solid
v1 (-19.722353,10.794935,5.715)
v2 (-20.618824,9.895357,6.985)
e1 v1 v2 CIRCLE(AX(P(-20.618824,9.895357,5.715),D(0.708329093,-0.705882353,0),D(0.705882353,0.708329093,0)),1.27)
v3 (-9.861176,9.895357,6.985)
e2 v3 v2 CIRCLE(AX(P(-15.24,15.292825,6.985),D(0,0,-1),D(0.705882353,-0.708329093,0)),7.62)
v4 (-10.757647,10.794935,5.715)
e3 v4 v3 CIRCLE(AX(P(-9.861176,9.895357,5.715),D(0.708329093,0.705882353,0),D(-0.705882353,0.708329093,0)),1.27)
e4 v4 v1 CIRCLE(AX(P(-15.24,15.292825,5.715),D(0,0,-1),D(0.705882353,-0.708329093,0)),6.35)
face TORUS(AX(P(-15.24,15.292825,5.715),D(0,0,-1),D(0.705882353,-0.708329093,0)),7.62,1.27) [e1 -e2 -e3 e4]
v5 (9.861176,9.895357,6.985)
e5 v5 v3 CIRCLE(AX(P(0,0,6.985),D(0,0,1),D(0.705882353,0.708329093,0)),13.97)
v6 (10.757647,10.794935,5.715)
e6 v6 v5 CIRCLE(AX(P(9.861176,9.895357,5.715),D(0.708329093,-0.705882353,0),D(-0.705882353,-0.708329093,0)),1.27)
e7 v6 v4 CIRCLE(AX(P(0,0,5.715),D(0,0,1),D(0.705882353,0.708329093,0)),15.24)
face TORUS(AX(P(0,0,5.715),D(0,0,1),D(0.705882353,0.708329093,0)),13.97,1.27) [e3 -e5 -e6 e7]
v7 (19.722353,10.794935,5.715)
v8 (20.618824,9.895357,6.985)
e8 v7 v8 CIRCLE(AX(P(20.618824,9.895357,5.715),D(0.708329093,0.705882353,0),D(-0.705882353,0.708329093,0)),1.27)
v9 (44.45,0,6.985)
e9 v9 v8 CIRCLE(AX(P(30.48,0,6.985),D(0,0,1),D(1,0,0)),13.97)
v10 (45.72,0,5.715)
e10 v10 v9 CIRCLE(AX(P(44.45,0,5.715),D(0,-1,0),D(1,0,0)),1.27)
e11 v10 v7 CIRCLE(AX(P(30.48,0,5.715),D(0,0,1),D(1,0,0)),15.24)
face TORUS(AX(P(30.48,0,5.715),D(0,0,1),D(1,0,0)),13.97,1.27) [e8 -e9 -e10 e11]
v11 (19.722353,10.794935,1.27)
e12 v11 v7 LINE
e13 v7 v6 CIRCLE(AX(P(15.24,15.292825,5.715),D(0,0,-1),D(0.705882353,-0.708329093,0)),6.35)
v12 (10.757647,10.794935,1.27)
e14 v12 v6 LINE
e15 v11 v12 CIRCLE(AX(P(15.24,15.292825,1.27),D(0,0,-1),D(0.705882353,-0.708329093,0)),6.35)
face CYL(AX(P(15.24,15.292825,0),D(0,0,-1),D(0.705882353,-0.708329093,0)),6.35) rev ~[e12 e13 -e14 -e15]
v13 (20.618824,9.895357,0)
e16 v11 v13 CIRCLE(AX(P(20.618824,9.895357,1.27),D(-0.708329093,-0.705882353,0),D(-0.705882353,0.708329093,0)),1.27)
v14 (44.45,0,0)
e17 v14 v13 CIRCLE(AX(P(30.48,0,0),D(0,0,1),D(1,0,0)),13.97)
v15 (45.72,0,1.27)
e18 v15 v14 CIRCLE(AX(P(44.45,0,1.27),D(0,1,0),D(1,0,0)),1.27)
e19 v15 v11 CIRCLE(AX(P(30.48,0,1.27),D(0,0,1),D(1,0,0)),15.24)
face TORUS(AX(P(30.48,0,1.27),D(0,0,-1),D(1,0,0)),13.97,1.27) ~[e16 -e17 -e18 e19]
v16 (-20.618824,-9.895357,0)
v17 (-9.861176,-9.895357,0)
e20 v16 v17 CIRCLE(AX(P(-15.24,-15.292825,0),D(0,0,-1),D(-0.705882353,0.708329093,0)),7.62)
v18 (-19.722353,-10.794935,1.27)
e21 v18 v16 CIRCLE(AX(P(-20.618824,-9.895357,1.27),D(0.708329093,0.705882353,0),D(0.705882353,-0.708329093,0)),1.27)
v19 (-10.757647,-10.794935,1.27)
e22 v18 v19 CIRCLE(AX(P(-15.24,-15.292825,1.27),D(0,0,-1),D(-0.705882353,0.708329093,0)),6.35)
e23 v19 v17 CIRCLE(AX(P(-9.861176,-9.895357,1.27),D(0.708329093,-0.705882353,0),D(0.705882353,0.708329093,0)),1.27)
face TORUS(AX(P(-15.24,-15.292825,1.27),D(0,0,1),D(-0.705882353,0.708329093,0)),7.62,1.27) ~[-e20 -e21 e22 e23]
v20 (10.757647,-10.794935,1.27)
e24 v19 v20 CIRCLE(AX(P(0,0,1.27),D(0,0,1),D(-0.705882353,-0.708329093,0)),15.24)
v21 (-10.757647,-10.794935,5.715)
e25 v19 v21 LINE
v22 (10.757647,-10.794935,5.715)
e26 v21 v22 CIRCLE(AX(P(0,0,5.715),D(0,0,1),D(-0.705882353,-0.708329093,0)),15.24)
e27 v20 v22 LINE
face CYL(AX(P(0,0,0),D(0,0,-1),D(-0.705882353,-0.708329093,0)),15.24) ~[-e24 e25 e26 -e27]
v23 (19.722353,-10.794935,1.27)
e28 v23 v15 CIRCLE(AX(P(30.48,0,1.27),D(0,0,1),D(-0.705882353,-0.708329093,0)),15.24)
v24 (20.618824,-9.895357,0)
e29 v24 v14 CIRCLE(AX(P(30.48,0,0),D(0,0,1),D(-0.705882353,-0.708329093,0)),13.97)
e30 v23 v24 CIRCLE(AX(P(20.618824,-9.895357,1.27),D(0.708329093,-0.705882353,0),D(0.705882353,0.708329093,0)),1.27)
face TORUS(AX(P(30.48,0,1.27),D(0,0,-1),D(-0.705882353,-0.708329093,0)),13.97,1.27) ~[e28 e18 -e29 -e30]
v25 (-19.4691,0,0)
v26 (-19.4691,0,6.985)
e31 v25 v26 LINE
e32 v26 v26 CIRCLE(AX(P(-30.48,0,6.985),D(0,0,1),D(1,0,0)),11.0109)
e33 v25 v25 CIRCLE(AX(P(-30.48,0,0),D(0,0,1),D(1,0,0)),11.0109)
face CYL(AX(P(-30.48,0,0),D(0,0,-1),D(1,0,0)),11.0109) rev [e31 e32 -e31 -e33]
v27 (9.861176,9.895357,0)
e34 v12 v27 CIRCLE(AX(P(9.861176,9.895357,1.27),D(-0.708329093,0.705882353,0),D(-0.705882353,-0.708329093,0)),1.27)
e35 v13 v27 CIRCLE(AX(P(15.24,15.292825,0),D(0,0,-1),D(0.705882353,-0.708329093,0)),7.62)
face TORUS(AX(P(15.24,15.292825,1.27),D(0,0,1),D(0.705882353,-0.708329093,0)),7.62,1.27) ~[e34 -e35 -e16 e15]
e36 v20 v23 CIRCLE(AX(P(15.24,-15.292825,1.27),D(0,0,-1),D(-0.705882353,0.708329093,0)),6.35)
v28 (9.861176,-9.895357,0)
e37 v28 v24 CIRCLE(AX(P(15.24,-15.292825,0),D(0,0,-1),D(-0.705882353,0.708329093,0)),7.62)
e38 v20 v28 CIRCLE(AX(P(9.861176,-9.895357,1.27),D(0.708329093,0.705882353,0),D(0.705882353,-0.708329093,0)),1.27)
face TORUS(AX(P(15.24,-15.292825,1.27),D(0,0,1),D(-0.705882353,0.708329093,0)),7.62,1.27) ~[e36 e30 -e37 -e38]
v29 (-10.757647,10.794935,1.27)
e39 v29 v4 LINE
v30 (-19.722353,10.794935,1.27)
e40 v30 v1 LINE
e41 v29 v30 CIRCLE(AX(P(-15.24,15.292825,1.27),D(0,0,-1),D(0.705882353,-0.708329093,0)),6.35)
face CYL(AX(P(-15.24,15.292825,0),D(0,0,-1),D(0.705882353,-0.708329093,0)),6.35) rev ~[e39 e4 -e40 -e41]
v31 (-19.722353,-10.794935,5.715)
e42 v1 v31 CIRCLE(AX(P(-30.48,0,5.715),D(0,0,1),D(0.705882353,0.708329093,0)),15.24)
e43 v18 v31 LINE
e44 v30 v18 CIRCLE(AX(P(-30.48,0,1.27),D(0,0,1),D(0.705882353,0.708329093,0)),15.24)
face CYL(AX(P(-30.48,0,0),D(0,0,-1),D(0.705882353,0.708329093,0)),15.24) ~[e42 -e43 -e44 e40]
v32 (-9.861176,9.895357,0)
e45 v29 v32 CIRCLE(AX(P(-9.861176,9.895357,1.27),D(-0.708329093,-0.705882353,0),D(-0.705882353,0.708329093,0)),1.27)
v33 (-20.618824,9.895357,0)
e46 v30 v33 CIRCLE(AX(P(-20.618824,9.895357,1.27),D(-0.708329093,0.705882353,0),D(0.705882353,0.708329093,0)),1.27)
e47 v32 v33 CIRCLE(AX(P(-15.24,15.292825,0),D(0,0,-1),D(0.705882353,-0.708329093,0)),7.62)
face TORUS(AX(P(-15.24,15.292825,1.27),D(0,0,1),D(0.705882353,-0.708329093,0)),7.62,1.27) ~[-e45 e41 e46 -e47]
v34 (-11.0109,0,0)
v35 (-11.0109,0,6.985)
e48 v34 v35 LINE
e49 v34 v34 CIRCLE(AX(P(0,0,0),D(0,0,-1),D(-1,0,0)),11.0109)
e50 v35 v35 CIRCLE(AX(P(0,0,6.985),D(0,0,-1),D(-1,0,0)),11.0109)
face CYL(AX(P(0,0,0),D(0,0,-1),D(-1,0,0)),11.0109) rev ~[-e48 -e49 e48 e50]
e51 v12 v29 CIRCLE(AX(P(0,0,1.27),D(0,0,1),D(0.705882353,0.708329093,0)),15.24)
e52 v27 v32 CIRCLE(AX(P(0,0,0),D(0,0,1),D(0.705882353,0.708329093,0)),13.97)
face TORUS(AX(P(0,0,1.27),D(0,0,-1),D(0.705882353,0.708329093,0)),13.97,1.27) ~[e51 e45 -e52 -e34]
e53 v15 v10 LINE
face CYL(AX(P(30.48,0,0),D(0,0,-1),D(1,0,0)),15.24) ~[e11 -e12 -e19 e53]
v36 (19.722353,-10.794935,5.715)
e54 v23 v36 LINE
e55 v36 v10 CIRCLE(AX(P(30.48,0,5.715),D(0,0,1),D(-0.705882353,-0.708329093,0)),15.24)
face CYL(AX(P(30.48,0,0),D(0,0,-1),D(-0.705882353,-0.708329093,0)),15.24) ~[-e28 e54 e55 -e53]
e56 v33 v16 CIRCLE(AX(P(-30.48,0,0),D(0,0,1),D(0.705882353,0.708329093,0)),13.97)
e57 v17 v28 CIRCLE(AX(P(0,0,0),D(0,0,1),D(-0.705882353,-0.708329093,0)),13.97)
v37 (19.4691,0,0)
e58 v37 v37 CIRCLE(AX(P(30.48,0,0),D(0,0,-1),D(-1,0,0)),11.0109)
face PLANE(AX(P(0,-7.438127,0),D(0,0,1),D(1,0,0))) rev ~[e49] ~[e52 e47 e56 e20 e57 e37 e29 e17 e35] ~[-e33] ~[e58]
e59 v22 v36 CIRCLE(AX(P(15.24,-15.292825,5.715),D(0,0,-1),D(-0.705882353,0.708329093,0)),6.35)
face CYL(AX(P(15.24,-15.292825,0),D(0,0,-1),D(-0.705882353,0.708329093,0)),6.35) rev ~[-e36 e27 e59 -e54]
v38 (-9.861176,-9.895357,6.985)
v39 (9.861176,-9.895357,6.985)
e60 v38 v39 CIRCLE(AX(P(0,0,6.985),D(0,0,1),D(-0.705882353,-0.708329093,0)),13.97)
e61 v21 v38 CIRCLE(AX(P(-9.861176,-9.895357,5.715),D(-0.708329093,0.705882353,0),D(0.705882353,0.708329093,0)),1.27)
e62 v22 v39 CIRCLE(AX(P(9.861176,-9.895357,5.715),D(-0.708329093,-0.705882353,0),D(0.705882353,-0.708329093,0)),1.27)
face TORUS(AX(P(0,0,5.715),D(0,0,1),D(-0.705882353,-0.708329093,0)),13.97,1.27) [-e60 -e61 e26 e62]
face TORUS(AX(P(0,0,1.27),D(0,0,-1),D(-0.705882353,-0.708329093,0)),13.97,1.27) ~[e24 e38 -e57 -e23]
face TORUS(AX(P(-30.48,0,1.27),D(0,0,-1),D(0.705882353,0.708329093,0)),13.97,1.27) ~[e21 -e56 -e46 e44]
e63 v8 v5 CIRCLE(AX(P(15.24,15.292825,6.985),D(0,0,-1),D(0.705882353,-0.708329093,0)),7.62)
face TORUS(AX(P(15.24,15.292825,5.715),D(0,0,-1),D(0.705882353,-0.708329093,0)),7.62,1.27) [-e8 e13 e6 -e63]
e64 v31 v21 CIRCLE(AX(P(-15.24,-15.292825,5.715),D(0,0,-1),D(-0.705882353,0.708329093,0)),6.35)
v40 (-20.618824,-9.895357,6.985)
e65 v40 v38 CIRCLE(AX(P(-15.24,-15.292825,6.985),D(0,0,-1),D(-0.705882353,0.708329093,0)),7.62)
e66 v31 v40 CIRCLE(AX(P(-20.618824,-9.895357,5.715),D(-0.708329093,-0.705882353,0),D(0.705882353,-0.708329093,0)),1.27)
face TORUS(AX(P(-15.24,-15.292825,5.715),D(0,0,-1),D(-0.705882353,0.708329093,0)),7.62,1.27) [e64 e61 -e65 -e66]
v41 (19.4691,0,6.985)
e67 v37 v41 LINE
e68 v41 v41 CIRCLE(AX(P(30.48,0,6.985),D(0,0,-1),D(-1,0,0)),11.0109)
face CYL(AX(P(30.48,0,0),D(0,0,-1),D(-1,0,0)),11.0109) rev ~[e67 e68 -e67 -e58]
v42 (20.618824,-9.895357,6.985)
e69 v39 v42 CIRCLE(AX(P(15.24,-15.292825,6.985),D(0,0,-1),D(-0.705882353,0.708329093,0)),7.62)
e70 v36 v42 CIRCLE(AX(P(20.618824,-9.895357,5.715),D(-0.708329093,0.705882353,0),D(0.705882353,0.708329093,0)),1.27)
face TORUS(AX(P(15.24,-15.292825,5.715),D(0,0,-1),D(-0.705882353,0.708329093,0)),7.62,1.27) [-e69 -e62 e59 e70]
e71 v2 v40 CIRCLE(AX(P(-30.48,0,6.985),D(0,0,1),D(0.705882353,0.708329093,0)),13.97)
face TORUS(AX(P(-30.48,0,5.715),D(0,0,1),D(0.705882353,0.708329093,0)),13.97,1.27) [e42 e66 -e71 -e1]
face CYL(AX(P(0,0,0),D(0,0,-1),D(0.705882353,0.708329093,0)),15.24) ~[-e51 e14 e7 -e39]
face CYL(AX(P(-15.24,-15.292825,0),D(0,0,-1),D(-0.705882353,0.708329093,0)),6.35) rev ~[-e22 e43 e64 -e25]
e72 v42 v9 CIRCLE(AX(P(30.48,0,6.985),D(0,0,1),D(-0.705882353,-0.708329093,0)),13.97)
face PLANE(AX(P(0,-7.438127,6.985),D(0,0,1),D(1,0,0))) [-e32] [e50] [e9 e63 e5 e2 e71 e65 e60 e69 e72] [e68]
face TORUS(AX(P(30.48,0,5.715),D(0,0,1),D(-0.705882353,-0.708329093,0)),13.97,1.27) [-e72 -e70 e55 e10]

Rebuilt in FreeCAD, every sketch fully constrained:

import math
import FreeCAD as App
import Part
import Sketcher

V = App.Vector
Q = App.Units.Quantity


def edges_at(feature, points):
    """Names of the edges that pass closest to the given points."""
    edges = feature.Shape.Edges
    near = lambda p: min(range(len(edges)), key=lambda i: edges[i].distToShape(Part.Vertex(*p))[0])
    return sorted({f"Edge{near(p) + 1}" for p in points})

doc = App.newDocument("Part")
params = doc.addObject("Spreadsheet::Sheet", "Params")
for row, (alias, value) in enumerate([
    ("sketch1_radius", "0.6 in"),
    ("sketch1_radius2", "0.25 in"),
    ("sketch1_diameter", "0.867 in"),
    ("pad1_length", "0.275 in"),
    ("fillet_radius", "0.05 in"),
], start=1):
    params.set(f"A{row}", alias)
    params.set(f"B{row}", "=" + value)
    params.setAlias(f"B{row}", alias)

body = doc.addObject("PartDesign::Body", "Body")

sketch1 = body.newObject("Sketcher::SketchObject", "Sketch")
sketch1.AttachmentSupport = (doc.getObject("XY_Plane"), [""])
sketch1.MapMode = "FlatFace"
sketch1.addGeometry([
    Part.ArcOfCircle(Part.Circle(V(-30.48, 0, 0), V(0, 0, 1), 15.24), math.radians(45.099128), math.radians(314.900872)),
    Part.ArcOfCircle(Part.Circle(V(-15.24, -15.292825, 0), V(0, 0, 1), 6.35), math.radians(45.099128), math.radians(134.900872)),
    Part.ArcOfCircle(Part.Circle(V(0, 0, 0), V(0, 0, 1), 15.24), math.radians(-134.900872), math.radians(-45.099128)),
    Part.ArcOfCircle(Part.Circle(V(15.24, -15.292825, 0), V(0, 0, 1), 6.35), math.radians(45.099128), math.radians(134.900872)),
    Part.ArcOfCircle(Part.Circle(V(30.48, 0, 0), V(0, 0, 1), 15.24), math.radians(-134.900872), math.radians(0)),
    Part.ArcOfCircle(Part.Circle(V(30.48, 0, 0), V(0, 0, 1), 15.24), math.radians(0), math.radians(134.900872)),
    Part.ArcOfCircle(Part.Circle(V(15.24, 15.292825, 0), V(0, 0, 1), 6.35), math.radians(-134.900872), math.radians(-45.099128)),
    Part.ArcOfCircle(Part.Circle(V(0, 0, 0), V(0, 0, 1), 15.24), math.radians(45.099128), math.radians(134.900872)),
    Part.ArcOfCircle(Part.Circle(V(-15.24, 15.292825, 0), V(0, 0, 1), 6.35), math.radians(-134.900872), math.radians(-45.099128)),
    Part.Circle(V(0, 0, 0), V(0, 0, 1), 11.0109),
    Part.Circle(V(30.48, 0, 0), V(0, 0, 1), 11.0109),
    Part.Circle(V(-30.48, 0, 0), V(0, 0, 1), 11.0109),
], False)
sketch1.addConstraint([
    Sketcher.Constraint("Tangent", 0, 2, 1, 2),
    Sketcher.Constraint("Tangent", 1, 1, 2, 1),
    Sketcher.Constraint("Tangent", 2, 2, 3, 2),
    Sketcher.Constraint("Tangent", 3, 1, 4, 1),
    Sketcher.Constraint("Tangent", 4, 2, 5, 1),
    Sketcher.Constraint("Tangent", 5, 2, 6, 2),
    Sketcher.Constraint("Tangent", 6, 1, 7, 1),
    Sketcher.Constraint("Tangent", 7, 2, 8, 2),
    Sketcher.Constraint("Tangent", 8, 1, 0, 1),
    Sketcher.Constraint("Coincident", 2, 3, -1, 1),
    Sketcher.Constraint("Coincident", 7, 3, -1, 1),
    Sketcher.Constraint("Coincident", 9, 3, -1, 1),
    Sketcher.Constraint("Coincident", 10, 3, 4, 3),
    Sketcher.Constraint("Coincident", 11, 3, 0, 3),
    Sketcher.Constraint("Equal", 0, 2),
    Sketcher.Constraint("Equal", 1, 3),
    Sketcher.Constraint("Equal", 2, 4),
    Sketcher.Constraint("Equal", 4, 5),
    Sketcher.Constraint("Equal", 3, 6),
    Sketcher.Constraint("Equal", 5, 7),
    Sketcher.Constraint("Equal", 6, 8),
    Sketcher.Constraint("Equal", 9, 10),
    Sketcher.Constraint("Equal", 10, 11),
    Sketcher.Constraint("Symmetric", 0, 3, 4, 3, -1, 1),
    Sketcher.Constraint("PointOnObject", 0, 3, -1),
    Sketcher.Constraint("PointOnObject", 4, 2, -1),
    Sketcher.Constraint("Radius", 0, Q("0.6 in")),
    Sketcher.Constraint("Radius", 1, Q("0.25 in")),
    Sketcher.Constraint("Diameter", 9, Q("0.867 in")),
    Sketcher.Constraint("DistanceX", 0, 3, -1, 1, Q("1.2 in")),
])
sketch1.setExpression("Constraints[26]", "Params.sketch1_radius")
sketch1.setExpression("Constraints[27]", "Params.sketch1_radius2")
sketch1.setExpression("Constraints[28]", "Params.sketch1_diameter")
pad1 = body.newObject("PartDesign::Pad", "Pad")
pad1.Profile = sketch1
pad1.setExpression("Length", "Params.pad1_length")
doc.recompute()

fillet = body.newObject("PartDesign::Fillet", "Fillet")
fillet.Base = (pad1, edges_at(pad1, [
    (-45.72, 0, 6.985),
    (0, 15.24, 6.985),
    (0, -15.24, 6.985),
    (-15.24, -8.943, 6.985),
    (-15.24, 8.943, 6.985),
    (15.24, 8.943, 6.985),
    (45.72, 0, 3.493),
    (15.24, -8.943, 6.985),
    (-45.72, 0, 0),
    (0, -15.24, 0),
    (45.72, 0, 3.493),
    (15.24, 8.943, 0),
    (0, 15.24, 0),
    (-15.24, 8.943, 0),
    (15.24, -8.943, 0),
    (-15.24, -8.943, 0),
]))
fillet.setExpression("Radius", "Params.fillet_radius")

doc.recompute()
